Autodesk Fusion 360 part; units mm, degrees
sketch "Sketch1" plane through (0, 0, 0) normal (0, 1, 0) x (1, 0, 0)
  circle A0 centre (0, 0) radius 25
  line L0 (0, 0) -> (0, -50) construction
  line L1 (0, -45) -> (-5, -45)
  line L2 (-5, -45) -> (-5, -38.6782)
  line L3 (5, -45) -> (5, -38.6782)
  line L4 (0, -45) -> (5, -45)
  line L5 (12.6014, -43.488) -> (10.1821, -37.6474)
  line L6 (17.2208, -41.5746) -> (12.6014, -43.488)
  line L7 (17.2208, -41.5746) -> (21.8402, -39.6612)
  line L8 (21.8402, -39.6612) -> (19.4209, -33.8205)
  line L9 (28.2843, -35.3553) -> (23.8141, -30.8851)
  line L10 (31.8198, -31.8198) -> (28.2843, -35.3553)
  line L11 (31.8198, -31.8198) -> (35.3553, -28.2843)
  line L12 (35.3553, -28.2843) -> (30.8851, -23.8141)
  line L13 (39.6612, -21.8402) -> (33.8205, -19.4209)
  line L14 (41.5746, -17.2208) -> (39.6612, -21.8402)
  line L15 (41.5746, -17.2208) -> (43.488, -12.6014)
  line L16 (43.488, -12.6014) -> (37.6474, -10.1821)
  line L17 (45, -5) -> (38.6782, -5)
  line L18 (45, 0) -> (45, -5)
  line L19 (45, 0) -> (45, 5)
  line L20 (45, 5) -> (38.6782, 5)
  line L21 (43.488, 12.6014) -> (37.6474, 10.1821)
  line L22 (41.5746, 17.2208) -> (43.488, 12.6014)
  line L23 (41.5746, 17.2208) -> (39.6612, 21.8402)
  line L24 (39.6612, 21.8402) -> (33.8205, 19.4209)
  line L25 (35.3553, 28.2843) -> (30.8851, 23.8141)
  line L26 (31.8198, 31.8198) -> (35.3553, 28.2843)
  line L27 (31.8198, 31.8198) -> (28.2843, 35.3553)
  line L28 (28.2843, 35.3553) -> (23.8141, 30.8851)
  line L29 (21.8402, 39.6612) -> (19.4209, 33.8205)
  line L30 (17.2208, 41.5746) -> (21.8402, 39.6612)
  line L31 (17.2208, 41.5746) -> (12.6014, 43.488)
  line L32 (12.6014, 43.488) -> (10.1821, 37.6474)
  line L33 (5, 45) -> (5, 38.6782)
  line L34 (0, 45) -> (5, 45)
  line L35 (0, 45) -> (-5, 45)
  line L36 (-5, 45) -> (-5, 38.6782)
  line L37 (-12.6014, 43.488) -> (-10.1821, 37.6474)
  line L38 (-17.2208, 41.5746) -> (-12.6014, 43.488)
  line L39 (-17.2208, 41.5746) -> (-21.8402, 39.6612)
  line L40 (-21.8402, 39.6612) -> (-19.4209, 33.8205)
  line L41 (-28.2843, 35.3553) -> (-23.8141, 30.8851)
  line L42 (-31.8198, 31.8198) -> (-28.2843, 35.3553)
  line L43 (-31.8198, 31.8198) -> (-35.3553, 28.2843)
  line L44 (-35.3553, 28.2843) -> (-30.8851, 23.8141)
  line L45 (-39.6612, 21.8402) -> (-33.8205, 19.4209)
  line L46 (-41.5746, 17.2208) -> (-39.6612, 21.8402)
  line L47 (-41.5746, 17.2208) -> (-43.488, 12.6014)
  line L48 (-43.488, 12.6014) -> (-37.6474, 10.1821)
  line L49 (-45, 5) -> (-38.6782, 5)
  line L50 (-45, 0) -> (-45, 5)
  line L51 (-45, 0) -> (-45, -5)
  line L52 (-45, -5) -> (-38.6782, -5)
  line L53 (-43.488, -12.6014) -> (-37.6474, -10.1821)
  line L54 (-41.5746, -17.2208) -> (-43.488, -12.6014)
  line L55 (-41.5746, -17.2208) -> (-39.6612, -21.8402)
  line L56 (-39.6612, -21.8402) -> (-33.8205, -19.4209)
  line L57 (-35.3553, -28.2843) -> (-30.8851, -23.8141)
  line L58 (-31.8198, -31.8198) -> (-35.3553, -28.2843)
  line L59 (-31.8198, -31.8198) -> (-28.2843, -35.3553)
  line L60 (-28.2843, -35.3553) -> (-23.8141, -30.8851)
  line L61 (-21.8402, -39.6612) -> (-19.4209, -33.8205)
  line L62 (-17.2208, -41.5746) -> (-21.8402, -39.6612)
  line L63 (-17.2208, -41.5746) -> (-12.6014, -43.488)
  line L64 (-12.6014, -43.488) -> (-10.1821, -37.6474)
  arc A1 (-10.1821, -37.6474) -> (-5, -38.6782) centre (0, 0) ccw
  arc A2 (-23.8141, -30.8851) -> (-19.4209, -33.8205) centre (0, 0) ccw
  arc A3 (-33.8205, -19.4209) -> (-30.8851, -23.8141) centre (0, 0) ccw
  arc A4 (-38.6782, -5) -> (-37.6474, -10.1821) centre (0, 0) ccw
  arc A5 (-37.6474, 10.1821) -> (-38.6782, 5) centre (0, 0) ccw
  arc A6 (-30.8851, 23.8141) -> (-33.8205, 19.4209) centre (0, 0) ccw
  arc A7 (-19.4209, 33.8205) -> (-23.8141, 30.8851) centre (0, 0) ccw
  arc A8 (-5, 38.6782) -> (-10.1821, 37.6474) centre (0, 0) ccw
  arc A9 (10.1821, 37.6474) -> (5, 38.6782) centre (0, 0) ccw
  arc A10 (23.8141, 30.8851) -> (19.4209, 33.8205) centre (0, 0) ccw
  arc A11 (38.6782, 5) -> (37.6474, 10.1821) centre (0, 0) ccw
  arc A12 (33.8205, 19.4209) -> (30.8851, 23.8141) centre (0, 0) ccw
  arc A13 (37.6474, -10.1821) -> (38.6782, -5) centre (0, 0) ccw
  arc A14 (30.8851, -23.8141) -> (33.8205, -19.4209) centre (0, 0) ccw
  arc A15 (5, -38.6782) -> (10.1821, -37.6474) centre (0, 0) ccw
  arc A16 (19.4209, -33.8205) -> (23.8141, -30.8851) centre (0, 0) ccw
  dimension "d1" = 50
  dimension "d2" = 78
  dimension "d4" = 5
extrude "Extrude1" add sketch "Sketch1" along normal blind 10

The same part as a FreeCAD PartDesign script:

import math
import FreeCAD as App
import Part
import Sketcher
from FreeCAD import Vector
Q = App.Units.Quantity

doc = App.newDocument("Part")
body = doc.addObject("PartDesign::Body", "Body")

sketch1 = doc.addObject("Sketcher::SketchObject", "Sketch")
body.addObject(sketch1)
sketch1.AttachmentSupport = (doc.XZ_Plane, [""])
sketch1.MapMode = "FlatFace"
sketch1.addGeometry([
    Part.LineSegment(Vector(-5, 45, 0), Vector(5, 45, 0)),
    Part.LineSegment(Vector(5, 45, 0), Vector(5, 38.6782, 0)),
    Part.ArcOfCircle(Part.Circle(Vector(0.000573, 0.003494, 0), Vector(0, 0, 1), 38.996502), math.radians(74.865357), math.radians(82.634298)),
    Part.LineSegment(Vector(10.1821, 37.6474, 0), Vector(12.6014, 43.488, 0)),
    Part.LineSegment(Vector(12.6014, 43.488, 0), Vector(21.8402, 39.6612, 0)),
    Part.LineSegment(Vector(21.8402, 39.6612, 0), Vector(19.4209, 33.8205, 0)),
    Part.ArcOfCircle(Part.Circle(Vector(-0.004687, -0.007557, 0), Vector(0, 0, 1), 39.008856), math.radians(52.367139), math.radians(60.133626)),
    Part.LineSegment(Vector(23.8141, 30.8851, 0), Vector(28.2843, 35.3553, 0)),
    Part.LineSegment(Vector(28.2843, 35.3553, 0), Vector(35.3553, 28.2843, 0)),
    Part.LineSegment(Vector(35.3553, 28.2843, 0), Vector(30.8851, 23.8141, 0)),
    Part.ArcOfCircle(Part.Circle(Vector(0.007219, 0.005186, 0), Vector(0, 0, 1), 38.991127), math.radians(29.864606), math.radians(37.63463)),
    Part.LineSegment(Vector(33.8205, 19.4209, 0), Vector(39.6612, 21.8402, 0)),
    Part.LineSegment(Vector(39.6612, 21.8402, 0), Vector(43.488, 12.6014, 0)),
    Part.LineSegment(Vector(43.488, 12.6014, 0), Vector(37.6474, 10.1821, 0)),
    Part.ArcOfCircle(Part.Circle(Vector(-0.003448, -0.000808, 0), Vector(0, 0, 1), 39.003563), math.radians(7.366406), math.radians(15.133939)),
    Part.LineSegment(Vector(38.6782, 5, 0), Vector(45, 5, 0)),
    Part.LineSegment(Vector(45, 5, 0), Vector(45, -5, 0)),
    Part.LineSegment(Vector(45, -5, 0), Vector(38.6782, -5, 0)),
    Part.ArcOfCircle(Part.Circle(Vector(0.003494, -0.000573, 0), Vector(0, 0, 1), 38.996502), math.radians(-15.134643), math.radians(-7.365702)),
    Part.LineSegment(Vector(37.6474, -10.1821, 0), Vector(43.488, -12.6014, 0)),
    Part.LineSegment(Vector(43.488, -12.6014, 0), Vector(39.6612, -21.8402, 0)),
    Part.LineSegment(Vector(39.6612, -21.8402, 0), Vector(33.8205, -19.4209, 0)),
    Part.ArcOfCircle(Part.Circle(Vector(-0.007557, 0.004687, 0), Vector(0, 0, 1), 39.008856), math.radians(-37.632861), math.radians(-29.866374)),
    Part.LineSegment(Vector(30.8851, -23.8141, 0), Vector(35.3553, -28.2843, 0)),
    Part.LineSegment(Vector(35.3553, -28.2843, 0), Vector(28.2843, -35.3553, 0)),
    Part.LineSegment(Vector(28.2843, -35.3553, 0), Vector(23.8141, -30.8851, 0)),
    Part.ArcOfCircle(Part.Circle(Vector(0.005186, -0.007219, 0), Vector(0, 0, 1), 38.991127), math.radians(-60.135394), math.radians(-52.36537)),
    Part.LineSegment(Vector(19.4209, -33.8205, 0), Vector(21.8402, -39.6612, 0)),
    Part.LineSegment(Vector(21.8402, -39.6612, 0), Vector(12.6014, -43.488, 0)),
    Part.LineSegment(Vector(12.6014, -43.488, 0), Vector(10.1821, -37.6474, 0)),
    Part.ArcOfCircle(Part.Circle(Vector(-0.000808, 0.003448, 0), Vector(0, 0, 1), 39.003563), math.radians(-82.633594), math.radians(-74.866061)),
    Part.LineSegment(Vector(5, -38.6782, 0), Vector(5, -45, 0)),
    Part.LineSegment(Vector(5, -45, 0), Vector(-5, -45, 0)),
    Part.LineSegment(Vector(-5, -45, 0), Vector(-5, -38.6782, 0)),
    Part.ArcOfCircle(Part.Circle(Vector(-0.000573, -0.003494, 0), Vector(0, 0, 1), 38.996502), math.radians(-105.134643), math.radians(-97.365702)),
    Part.LineSegment(Vector(-10.1821, -37.6474, 0), Vector(-12.6014, -43.488, 0)),
    Part.LineSegment(Vector(-12.6014, -43.488, 0), Vector(-21.8402, -39.6612, 0)),
    Part.LineSegment(Vector(-21.8402, -39.6612, 0), Vector(-19.4209, -33.8205, 0)),
    Part.ArcOfCircle(Part.Circle(Vector(0.004687, 0.007557, 0), Vector(0, 0, 1), 39.008856), math.radians(-127.632861), math.radians(-119.866374)),
    Part.LineSegment(Vector(-23.8141, -30.8851, 0), Vector(-28.2843, -35.3553, 0)),
    Part.LineSegment(Vector(-28.2843, -35.3553, 0), Vector(-35.3553, -28.2843, 0)),
    Part.LineSegment(Vector(-35.3553, -28.2843, 0), Vector(-30.8851, -23.8141, 0)),
    Part.ArcOfCircle(Part.Circle(Vector(-0.007219, -0.005186, 0), Vector(0, 0, 1), 38.991127), math.radians(-150.135394), math.radians(-142.36537)),
    Part.LineSegment(Vector(-33.8205, -19.4209, 0), Vector(-39.6612, -21.8402, 0)),
    Part.LineSegment(Vector(-39.6612, -21.8402, 0), Vector(-43.488, -12.6014, 0)),
    Part.LineSegment(Vector(-43.488, -12.6014, 0), Vector(-37.6474, -10.1821, 0)),
    Part.ArcOfCircle(Part.Circle(Vector(0.003448, 0.000808, 0), Vector(0, 0, 1), 39.003563), math.radians(-172.633594), math.radians(-164.866061)),
    Part.LineSegment(Vector(-38.6782, -5, 0), Vector(-45, -5, 0)),
    Part.LineSegment(Vector(-45, -5, 0), Vector(-45, 5, 0)),
    Part.LineSegment(Vector(-45, 5, 0), Vector(-38.6782, 5, 0)),
    Part.ArcOfCircle(Part.Circle(Vector(-0.003494, 0.000573, 0), Vector(0, 0, 1), 38.996502), math.radians(164.865357), math.radians(172.634298)),
    Part.LineSegment(Vector(-37.6474, 10.1821, 0), Vector(-43.488, 12.6014, 0)),
    Part.LineSegment(Vector(-43.488, 12.6014, 0), Vector(-39.6612, 21.8402, 0)),
    Part.LineSegment(Vector(-39.6612, 21.8402, 0), Vector(-33.8205, 19.4209, 0)),
    Part.ArcOfCircle(Part.Circle(Vector(0.007557, -0.004687, 0), Vector(0, 0, 1), 39.008856), math.radians(142.367139), math.radians(150.133626)),
    Part.LineSegment(Vector(-30.8851, 23.8141, 0), Vector(-35.3553, 28.2843, 0)),
    Part.LineSegment(Vector(-35.3553, 28.2843, 0), Vector(-28.2843, 35.3553, 0)),
    Part.LineSegment(Vector(-28.2843, 35.3553, 0), Vector(-23.8141, 30.8851, 0)),
    Part.ArcOfCircle(Part.Circle(Vector(-0.005186, 0.007219, 0), Vector(0, 0, 1), 38.991127), math.radians(119.864606), math.radians(127.63463)),
    Part.LineSegment(Vector(-19.4209, 33.8205, 0), Vector(-21.8402, 39.6612, 0)),
    Part.LineSegment(Vector(-21.8402, 39.6612, 0), Vector(-12.6014, 43.488, 0)),
    Part.LineSegment(Vector(-12.6014, 43.488, 0), Vector(-10.1821, 37.6474, 0)),
    Part.ArcOfCircle(Part.Circle(Vector(0.000808, -0.003448, 0), Vector(0, 0, 1), 39.003563), math.radians(97.366406), math.radians(105.133939)),
    Part.LineSegment(Vector(-5, 38.6782, 0), Vector(-5, 45, 0)),
    Part.Circle(Vector(0, 0, 0), Vector(0, 0, 1), 25),
], False)
sketch1.addConstraint([
    Sketcher.Constraint("Coincident", 0, 2, 1, 1),
    Sketcher.Constraint("Coincident", 1, 2, 2, 2),
    Sketcher.Constraint("Coincident", 2, 1, 3, 1),
    Sketcher.Constraint("Coincident", 3, 2, 4, 1),
    Sketcher.Constraint("Coincident", 4, 2, 5, 1),
    Sketcher.Constraint("Coincident", 5, 2, 6, 2),
    Sketcher.Constraint("Coincident", 6, 1, 7, 1),
    Sketcher.Constraint("Coincident", 7, 2, 8, 1),
    Sketcher.Constraint("Coincident", 8, 2, 9, 1),
    Sketcher.Constraint("Coincident", 9, 2, 10, 2),
    Sketcher.Constraint("Coincident", 10, 1, 11, 1),
    Sketcher.Constraint("Coincident", 11, 2, 12, 1),
    Sketcher.Constraint("Coincident", 12, 2, 13, 1),
    Sketcher.Constraint("Coincident", 13, 2, 14, 2),
    Sketcher.Constraint("Coincident", 14, 1, 15, 1),
    Sketcher.Constraint("Coincident", 15, 2, 16, 1),
    Sketcher.Constraint("Coincident", 16, 2, 17, 1),
    Sketcher.Constraint("Coincident", 17, 2, 18, 2),
    Sketcher.Constraint("Coincident", 18, 1, 19, 1),
    Sketcher.Constraint("Coincident", 19, 2, 20, 1),
    Sketcher.Constraint("Coincident", 20, 2, 21, 1),
    Sketcher.Constraint("Coincident", 21, 2, 22, 2),
    Sketcher.Constraint("Coincident", 22, 1, 23, 1),
    Sketcher.Constraint("Coincident", 23, 2, 24, 1),
    Sketcher.Constraint("Coincident", 24, 2, 25, 1),
    Sketcher.Constraint("Coincident", 25, 2, 26, 2),
    Sketcher.Constraint("Coincident", 26, 1, 27, 1),
    Sketcher.Constraint("Coincident", 27, 2, 28, 1),
    Sketcher.Constraint("Coincident", 28, 2, 29, 1),
    Sketcher.Constraint("Coincident", 29, 2, 30, 2),
    Sketcher.Constraint("Coincident", 30, 1, 31, 1),
    Sketcher.Constraint("Coincident", 31, 2, 32, 1),
    Sketcher.Constraint("Coincident", 32, 2, 33, 1),
    Sketcher.Constraint("Coincident", 33, 2, 34, 2),
    Sketcher.Constraint("Coincident", 34, 1, 35, 1),
    Sketcher.Constraint("Coincident", 35, 2, 36, 1),
    Sketcher.Constraint("Coincident", 36, 2, 37, 1),
    Sketcher.Constraint("Coincident", 37, 2, 38, 2),
    Sketcher.Constraint("Coincident", 38, 1, 39, 1),
    Sketcher.Constraint("Coincident", 39, 2, 40, 1),
    Sketcher.Constraint("Coincident", 40, 2, 41, 1),
    Sketcher.Constraint("Coincident", 41, 2, 42, 2),
    Sketcher.Constraint("Coincident", 42, 1, 43, 1),
    Sketcher.Constraint("Coincident", 43, 2, 44, 1),
    Sketcher.Constraint("Coincident", 44, 2, 45, 1),
    Sketcher.Constraint("Coincident", 45, 2, 46, 2),
    Sketcher.Constraint("Coincident", 46, 1, 47, 1),
    Sketcher.Constraint("Coincident", 47, 2, 48, 1),
    Sketcher.Constraint("Coincident", 48, 2, 49, 1),
    Sketcher.Constraint("Coincident", 49, 2, 50, 2),
    Sketcher.Constraint("Coincident", 50, 1, 51, 1),
    Sketcher.Constraint("Coincident", 51, 2, 52, 1),
    Sketcher.Constraint("Coincident", 52, 2, 53, 1),
    Sketcher.Constraint("Coincident", 53, 2, 54, 2),
    Sketcher.Constraint("Coincident", 54, 1, 55, 1),
    Sketcher.Constraint("Coincident", 55, 2, 56, 1),
    Sketcher.Constraint("Coincident", 56, 2, 57, 1),
    Sketcher.Constraint("Coincident", 57, 2, 58, 2),
    Sketcher.Constraint("Coincident", 58, 1, 59, 1),
    Sketcher.Constraint("Coincident", 59, 2, 60, 1),
    Sketcher.Constraint("Coincident", 60, 2, 61, 1),
    Sketcher.Constraint("Coincident", 61, 2, 62, 2),
    Sketcher.Constraint("Coincident", 62, 1, 63, 1),
    Sketcher.Constraint("Coincident", 63, 2, 0, 1),
    Sketcher.Constraint("Horizontal", 0),
    Sketcher.Constraint("Vertical", 1),
    Sketcher.Constraint("Horizontal", 15),
    Sketcher.Constraint("Vertical", 16),
    Sketcher.Constraint("Horizontal", 17),
    Sketcher.Constraint("Vertical", 31),
    Sketcher.Constraint("Horizontal", 32),
    Sketcher.Constraint("Vertical", 33),
    Sketcher.Constraint("Horizontal", 47),
    Sketcher.Constraint("Vertical", 48),
    Sketcher.Constraint("Horizontal", 49),
    Sketcher.Constraint("Vertical", 63),
    Sketcher.Constraint("Coincident", 64, 3, -1, 1),
    Sketcher.Constraint("Equal", 2, 18),
    Sketcher.Constraint("Equal", 6, 22),
    Sketcher.Constraint("Equal", 10, 26),
    Sketcher.Constraint("Equal", 14, 30),
    Sketcher.Constraint("Equal", 18, 34),
    Sketcher.Constraint("Equal", 22, 38),
    Sketcher.Constraint("Equal", 26, 42),
    Sketcher.Constraint("Equal", 30, 46),
    Sketcher.Constraint("Equal", 34, 50),
    Sketcher.Constraint("Equal", 38, 54),
    Sketcher.Constraint("Equal", 42, 58),
    Sketcher.Constraint("Equal", 46, 62),
    Sketcher.Constraint("Symmetric", 2, 3, 34, 3, -1, 1),
    Sketcher.Constraint("Symmetric", 6, 3, 38, 3, -1, 1),
    Sketcher.Constraint("Symmetric", 10, 3, 42, 3, -1, 1),
    Sketcher.Constraint("Symmetric", 14, 3, 46, 3, -1, 1),
    Sketcher.Constraint("Symmetric", 18, 3, 50, 3, -1, 1),
    Sketcher.Constraint("Symmetric", 22, 3, 54, 3, -1, 1),
    Sketcher.Constraint("Symmetric", 26, 3, 58, 3, -1, 1),
    Sketcher.Constraint("Symmetric", 30, 3, 62, 3, -1, 1),
    Sketcher.Constraint("Symmetric", 0, 2, 32, 2, -1, 1),
    Sketcher.Constraint("Symmetric", 3, 2, 35, 2, -1, 1),
    Sketcher.Constraint("Symmetric", 4, 2, 36, 2, -1, 1),
    Sketcher.Constraint("Symmetric", 7, 2, 39, 2, -1, 1),
    Sketcher.Constraint("Symmetric", 8, 2, 40, 2, -1, 1),
    Sketcher.Constraint("Symmetric", 11, 2, 43, 2, -1, 1),
    Sketcher.Constraint("Symmetric", 12, 2, 44, 2, -1, 1),
    Sketcher.Constraint("Symmetric", 15, 2, 47, 2, -1, 1),
    Sketcher.Constraint("Symmetric", 19, 2, 51, 2, -1, 1),
    Sketcher.Constraint("Symmetric", 20, 2, 52, 2, -1, 1),
    Sketcher.Constraint("Symmetric", 23, 2, 55, 2, -1, 1),
    Sketcher.Constraint("Symmetric", 24, 2, 56, 2, -1, 1),
    Sketcher.Constraint("Symmetric", 27, 2, 59, 2, -1, 1),
    Sketcher.Constraint("Symmetric", 28, 2, 60, 2, -1, 1),
    Sketcher.Constraint("Symmetric", 14, 3, 18, 3, -2),
    Sketcher.Constraint("Symmetric", 2, 3, 30, 3, -2),
    Sketcher.Constraint("Symmetric", 30, 1, 33, 2, -2),
    Sketcher.Constraint("Symmetric", 29, 2, 34, 1, -2),
    Sketcher.Constraint("Symmetric", 28, 2, 35, 2, -2),
    Sketcher.Constraint("Symmetric", 27, 2, 36, 2, -2),
    Sketcher.Constraint("Symmetric", 26, 1, 37, 2, -2),
    Sketcher.Constraint("Symmetric", 25, 2, 38, 1, -2),
    Sketcher.Constraint("Symmetric", 24, 2, 39, 2, -2),
    Sketcher.Constraint("Symmetric", 23, 2, 40, 2, -2),
    Sketcher.Constraint("Symmetric", 22, 1, 41, 2, -2),
    Sketcher.Constraint("Symmetric", 21, 2, 42, 1, -2),
    Sketcher.Constraint("Symmetric", 20, 2, 43, 2, -2),
    Sketcher.Constraint("Symmetric", 19, 2, 44, 2, -2),
    Sketcher.Constraint("Symmetric", 18, 1, 45, 2, -2),
    Sketcher.Constraint("Symmetric", 17, 2, 46, 1, -2),
    Sketcher.Constraint("Perpendicular", 3, 4),
    Sketcher.Constraint("Perpendicular", 4, 5),
    Sketcher.Constraint("Perpendicular", 7, 8),
    Sketcher.Constraint("Perpendicular", 8, 9),
    Sketcher.Constraint("Perpendicular", 11, 12),
    Sketcher.Constraint("Perpendicular", 12, 13),
    Sketcher.Constraint("Perpendicular", 5, 19),
    Sketcher.Constraint("Perpendicular", 19, 20),
    Sketcher.Constraint("Perpendicular", 20, 21),
    Sketcher.Constraint("Perpendicular", 9, 23),
    Sketcher.Constraint("Perpendicular", 23, 24),
    Sketcher.Constraint("Perpendicular", 24, 25),
    Sketcher.Constraint("Perpendicular", 13, 27),
    Sketcher.Constraint("Perpendicular", 28, 29),
    Sketcher.Constraint("Perpendicular", 37, 51),
    Sketcher.Constraint("Perpendicular", 52, 53),
    Sketcher.Constraint("Perpendicular", 41, 55),
    Sketcher.Constraint("Perpendicular", 56, 57),
    Sketcher.Constraint("Perpendicular", 45, 59),
    Sketcher.Constraint("Perpendicular", 60, 61),
    Sketcher.Constraint("Horizontal", 15, 2, 48, 2),
    Sketcher.Constraint("Horizontal", 1, 2, 62, 1),
    Sketcher.Constraint("Equal", 49, 1),
    Sketcher.Constraint("Equal", 32, 16),
    Sketcher.Constraint("Equal", 3, 5),
    Sketcher.Constraint("Equal", 5, 7),
    Sketcher.Constraint("Equal", 4, 8),
    Sketcher.Constraint("Equal", 7, 9),
    Sketcher.Constraint("Equal", 9, 11),
    Sketcher.Constraint("Equal", 8, 12),
    Sketcher.Constraint("Equal", 11, 13),
    Sketcher.Constraint("Diameter", 64, Q("50 mm")),
    Sketcher.Constraint("DistanceX", -1, 1, 0, 2, Q("5 mm")),
    Sketcher.Constraint("Distance", 4, Q("10 mm")),
    Sketcher.Constraint("DistanceY", -1, 1, 0, 2, Q("45 mm")),
    Sketcher.Constraint("Angle", 3, Q("67.4996 deg")),
    Sketcher.Constraint("Radius", 2, Q("38.9965 mm")),
    Sketcher.Constraint("Radius", 6, Q("39.0089 mm")),
    Sketcher.Constraint("Radius", 10, Q("38.9911 mm")),
    Sketcher.Constraint("Radius", 14, Q("39.0036 mm")),
    Sketcher.Constraint("Distance", 5, Q("6.322 mm")),
    Sketcher.Constraint("DistanceX", -1, 1, 2, 1, Q("10.182 mm")),
    Sketcher.Constraint("DistanceX", -1, 1, 6, 1, Q("23.814 mm")),
    Sketcher.Constraint("DistanceY", -1, 1, 6, 1, Q("30.885 mm")),
    Sketcher.Constraint("DistanceY", -1, 1, 10, 1, Q("19.421 mm")),
])
pad1 = doc.addObject("PartDesign::Pad", "Pad")
body.addObject(pad1)
pad1.Profile = sketch1
pad1.Length = 10
pad1.Reversed = True

doc.recompute()
